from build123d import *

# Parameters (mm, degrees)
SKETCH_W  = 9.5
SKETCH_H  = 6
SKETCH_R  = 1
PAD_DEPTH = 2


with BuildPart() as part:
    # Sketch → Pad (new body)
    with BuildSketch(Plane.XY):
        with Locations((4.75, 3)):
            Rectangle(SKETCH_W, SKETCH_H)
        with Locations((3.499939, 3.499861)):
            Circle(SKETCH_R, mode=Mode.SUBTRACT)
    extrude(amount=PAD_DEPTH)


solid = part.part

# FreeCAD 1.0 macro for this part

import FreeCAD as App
import Part
import Sketcher
from FreeCAD import Vector
Q = App.Units.Quantity


def add_polygon(sketch, points):
    """Adds a closed chain of lines whose ends are joined by coincident constraints."""
    first, n = sketch.GeometryCount, len(points)
    for a, b in zip(points, points[1:] + points[:1]):
        sketch.addGeometry(Part.LineSegment(App.Vector(*a, 0), App.Vector(*b, 0)), False)
    for i in range(n):
        sketch.addConstraint(Sketcher.Constraint("Coincident", first + i, 2, first + (i + 1) % n, 1))

doc = App.newDocument("Part")
body = doc.addObject("PartDesign::Body", "Body")

# Sketch on XY plane
sketch1 = body.newObject("Sketcher::SketchObject", "Sketch")
sketch1.AttachmentSupport = (doc.getObject("XY_Plane"), [""])
sketch1.MapMode = "FlatFace"
add_polygon(sketch1, [(0, 6), (0, 0), (9.5, 0), (9.5, 6)])  # lines 0-3
sketch1.addGeometry(Part.Circle(Vector(3.5, 3.5, 0), Vector(0, 0, 1), 1), False)  # 4
sketch1.addConstraint([
    Sketcher.Constraint("Vertical", 0),
    Sketcher.Constraint("Horizontal", 1),
    Sketcher.Constraint("Vertical", 2),
    Sketcher.Constraint("Horizontal", 3),
    Sketcher.Constraint("Coincident", 0, 2, -1, 1),
    Sketcher.Constraint("Diameter", 4, Q("2 mm")),
    Sketcher.Constraint("DistanceY", 0, 2, 0, 1, Q("6 mm")),
    Sketcher.Constraint("DistanceX", 1, 1, 1, 2, Q("9.5 mm")),
    Sketcher.Constraint("DistanceX", -1, 1, 4, 3, Q("3.499939 mm")),
    Sketcher.Constraint("DistanceY", -1, 1, 4, 3, Q("3.499861 mm")),
])
pad1 = body.newObject("PartDesign::Pad", "Pad")
pad1.Profile = sketch1
pad1.Length = 2

doc.recompute()
